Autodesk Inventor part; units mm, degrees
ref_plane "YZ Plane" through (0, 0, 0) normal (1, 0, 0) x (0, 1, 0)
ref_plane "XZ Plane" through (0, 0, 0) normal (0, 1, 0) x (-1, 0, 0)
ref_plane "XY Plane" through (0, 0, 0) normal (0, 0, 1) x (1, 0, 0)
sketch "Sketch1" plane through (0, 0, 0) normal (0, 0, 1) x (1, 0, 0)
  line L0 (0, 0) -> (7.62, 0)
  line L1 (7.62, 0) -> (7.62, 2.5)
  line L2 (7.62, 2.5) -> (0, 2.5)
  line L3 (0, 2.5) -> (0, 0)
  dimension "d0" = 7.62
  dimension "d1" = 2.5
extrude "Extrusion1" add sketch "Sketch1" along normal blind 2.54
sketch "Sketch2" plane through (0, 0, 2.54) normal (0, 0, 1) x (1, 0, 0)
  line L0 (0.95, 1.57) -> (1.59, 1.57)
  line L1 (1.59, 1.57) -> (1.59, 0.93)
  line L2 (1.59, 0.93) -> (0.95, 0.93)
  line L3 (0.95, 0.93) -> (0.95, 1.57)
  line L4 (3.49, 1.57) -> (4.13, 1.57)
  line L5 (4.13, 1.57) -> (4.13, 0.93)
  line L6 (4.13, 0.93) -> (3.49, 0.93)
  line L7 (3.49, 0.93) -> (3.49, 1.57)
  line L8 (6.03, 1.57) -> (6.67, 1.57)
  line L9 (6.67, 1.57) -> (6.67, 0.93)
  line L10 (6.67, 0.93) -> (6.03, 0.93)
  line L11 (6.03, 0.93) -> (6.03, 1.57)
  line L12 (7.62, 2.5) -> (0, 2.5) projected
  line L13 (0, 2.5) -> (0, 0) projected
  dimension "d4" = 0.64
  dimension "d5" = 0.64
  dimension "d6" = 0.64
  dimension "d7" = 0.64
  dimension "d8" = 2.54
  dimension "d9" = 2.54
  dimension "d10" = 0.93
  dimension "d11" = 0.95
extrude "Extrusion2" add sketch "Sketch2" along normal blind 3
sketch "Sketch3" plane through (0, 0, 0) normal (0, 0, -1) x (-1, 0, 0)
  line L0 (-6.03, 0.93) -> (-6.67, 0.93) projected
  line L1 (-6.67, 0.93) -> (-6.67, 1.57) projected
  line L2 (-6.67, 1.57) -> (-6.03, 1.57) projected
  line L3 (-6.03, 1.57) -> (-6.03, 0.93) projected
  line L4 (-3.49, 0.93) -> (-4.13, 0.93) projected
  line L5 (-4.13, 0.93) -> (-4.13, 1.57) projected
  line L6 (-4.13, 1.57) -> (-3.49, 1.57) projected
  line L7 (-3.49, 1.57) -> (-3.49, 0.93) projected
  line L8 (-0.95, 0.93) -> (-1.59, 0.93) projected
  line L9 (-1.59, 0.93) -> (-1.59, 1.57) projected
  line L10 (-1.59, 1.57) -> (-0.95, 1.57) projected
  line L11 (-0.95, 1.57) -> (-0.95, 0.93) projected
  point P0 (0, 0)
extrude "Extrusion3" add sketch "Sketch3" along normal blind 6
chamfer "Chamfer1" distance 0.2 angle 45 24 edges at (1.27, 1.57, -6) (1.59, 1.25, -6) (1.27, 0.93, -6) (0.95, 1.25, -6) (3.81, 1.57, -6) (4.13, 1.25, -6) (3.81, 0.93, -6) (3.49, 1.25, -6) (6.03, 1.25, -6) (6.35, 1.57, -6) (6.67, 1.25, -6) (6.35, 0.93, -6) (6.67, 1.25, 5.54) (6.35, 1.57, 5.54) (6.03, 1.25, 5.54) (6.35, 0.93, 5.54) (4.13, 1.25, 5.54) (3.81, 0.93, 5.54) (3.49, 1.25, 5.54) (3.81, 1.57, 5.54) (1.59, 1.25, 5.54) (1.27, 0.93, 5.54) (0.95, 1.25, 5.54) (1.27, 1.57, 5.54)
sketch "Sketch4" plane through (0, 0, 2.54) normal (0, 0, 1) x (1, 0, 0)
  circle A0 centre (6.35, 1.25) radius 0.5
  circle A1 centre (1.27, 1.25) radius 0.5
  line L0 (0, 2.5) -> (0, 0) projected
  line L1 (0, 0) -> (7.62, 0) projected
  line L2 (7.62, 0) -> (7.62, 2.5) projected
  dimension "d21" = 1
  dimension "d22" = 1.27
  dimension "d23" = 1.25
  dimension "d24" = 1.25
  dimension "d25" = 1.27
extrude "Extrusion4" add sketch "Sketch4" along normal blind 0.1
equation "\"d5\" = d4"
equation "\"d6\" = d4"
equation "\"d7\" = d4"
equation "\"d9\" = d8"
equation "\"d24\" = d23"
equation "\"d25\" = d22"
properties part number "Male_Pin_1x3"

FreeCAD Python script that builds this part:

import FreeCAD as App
import Part
import Sketcher
from FreeCAD import Vector
Q = App.Units.Quantity


def edges_at(feature, points):
    """Names of the edges that pass closest to the given points."""
    edges = feature.Shape.Edges
    near = lambda p: min(range(len(edges)), key=lambda i: edges[i].distToShape(Part.Vertex(*p))[0])
    return sorted({f"Edge{near(p) + 1}" for p in points})


def add_polygon(sketch, points):
    """Adds a closed chain of lines whose ends are joined by coincident constraints."""
    first, n = sketch.GeometryCount, len(points)
    for a, b in zip(points, points[1:] + points[:1]):
        sketch.addGeometry(Part.LineSegment(App.Vector(*a, 0), App.Vector(*b, 0)), False)
    for i in range(n):
        sketch.addConstraint(Sketcher.Constraint("Coincident", first + i, 2, first + (i + 1) % n, 1))

doc = App.newDocument("Part")
params = doc.addObject("Spreadsheet::Sheet", "Params")
for row, (alias, value) in enumerate([
    ("sketch1_height", "2.5 mm"),
    ("sketch1_width", "7.62 mm"),
    ("pad1_length", "2.54 mm"),
    ("sketch2_width", "0.64 mm"),
    ("pad2_length", "3 mm"),
    ("sketch3_width", "0.64 mm"),
    ("pad3_length", "6 mm"),
    ("chamfer_size", "0.2 mm"),
    ("sketch4_diameter", "1 mm"),
    ("pad4_length", "0.1 mm"),
], start=1):
    params.set(f"A{row}", alias)
    params.set(f"B{row}", "=" + value)
    params.setAlias(f"B{row}", alias)

body = doc.addObject("PartDesign::Body", "Body")

sketch1 = body.newObject("Sketcher::SketchObject", "Sketch")
sketch1.AttachmentSupport = (doc.getObject("XY_Plane"), [""])
sketch1.MapMode = "FlatFace"
add_polygon(sketch1, [(0, 2.5), (0, 0), (7.6, 0), (7.6, 2.5)])
sketch1.addConstraint(Sketcher.Constraint("Vertical", 0))
sketch1.addConstraint(Sketcher.Constraint("Horizontal", 1))
sketch1.addConstraint(Sketcher.Constraint("Vertical", 2))
sketch1.addConstraint(Sketcher.Constraint("Horizontal", 3))
sketch1.addConstraint(Sketcher.Constraint("Coincident", 0, 2, -1, 1))
sketch1.addConstraint(Sketcher.Constraint("DistanceY", 0, 2, 0, 1, Q("2.5 mm")))
sketch1.addConstraint(Sketcher.Constraint("DistanceX", 1, 1, 1, 2, Q("7.62 mm")))
sketch1.setExpression("Constraints[9]", "Params.sketch1_height")
sketch1.setExpression("Constraints[10]", "Params.sketch1_width")
pad1 = body.newObject("PartDesign::Pad", "Pad")
pad1.Profile = sketch1
pad1.setExpression("Length", "Params.pad1_length")

sketch2 = body.newObject("Sketcher::SketchObject", "Sketch001")
sketch2.AttachmentSupport = (doc.getObject("XY_Plane"), [""])
sketch2.MapMode = "FlatFace"
sketch2.AttachmentOffset = App.Placement(Vector(0, 0, 2.54), App.Rotation())
add_polygon(sketch2, [(1.6, 1.6), (0.9, 1.6), (0.9, 0.9), (1.6, 0.9)])
add_polygon(sketch2, [(4.1, 1.6), (3.5, 1.6), (3.5, 0.9), (4.1, 0.9)])
add_polygon(sketch2, [(6.7, 1.6), (6, 1.6), (6, 0.9), (6.7, 0.9)])
sketch2.addConstraint(Sketcher.Constraint("Horizontal", 0))
sketch2.addConstraint(Sketcher.Constraint("Vertical", 1))
sketch2.addConstraint(Sketcher.Constraint("Horizontal", 2))
sketch2.addConstraint(Sketcher.Constraint("Vertical", 3))
sketch2.addConstraint(Sketcher.Constraint("Horizontal", 4))
sketch2.addConstraint(Sketcher.Constraint("Vertical", 5))
sketch2.addConstraint(Sketcher.Constraint("Horizontal", 6))
sketch2.addConstraint(Sketcher.Constraint("Vertical", 7))
sketch2.addConstraint(Sketcher.Constraint("Horizontal", 8))
sketch2.addConstraint(Sketcher.Constraint("Vertical", 9))
sketch2.addConstraint(Sketcher.Constraint("Horizontal", 10))
sketch2.addConstraint(Sketcher.Constraint("Vertical", 11))
sketch2.addConstraint(Sketcher.Constraint("Horizontal", 3, 2, 4, 2))
sketch2.addConstraint(Sketcher.Constraint("Horizontal", 2, 2, 5, 2))
sketch2.addConstraint(Sketcher.Constraint("Horizontal", 7, 2, 8, 2))
sketch2.addConstraint(Sketcher.Constraint("Horizontal", 6, 2, 9, 2))
sketch2.addConstraint(Sketcher.Constraint("Equal", 2, 4))
sketch2.addConstraint(Sketcher.Constraint("Equal", 6, 8))
sketch2.addConstraint(Sketcher.Constraint("Equal", 10, 1))
sketch2.addConstraint(Sketcher.Constraint("DistanceX", 0, 2, 0, 1, Q("0.64 mm")))
sketch2.addConstraint(Sketcher.Constraint("DistanceX", -1, 1, 0, 2, Q("0.95 mm")))
sketch2.addConstraint(Sketcher.Constraint("DistanceY", -1, 1, 1, 2, Q("0.93 mm")))
sketch2.addConstraint(Sketcher.Constraint("DistanceX", 0, 2, 4, 2, Q("2.54 mm")))
sketch2.addConstraint(Sketcher.Constraint("DistanceX", 4, 2, 8, 2, Q("2.54 mm")))
sketch2.setExpression("Constraints[31]", "Params.sketch2_width")
pad2 = body.newObject("PartDesign::Pad", "Pad001")
pad2.Profile = sketch2
pad2.setExpression("Length", "Params.pad2_length")

sketch3 = body.newObject("Sketcher::SketchObject", "Sketch002")
sketch3.AttachmentSupport = (doc.getObject("XY_Plane"), [""])
sketch3.MapMode = "FlatFace"
add_polygon(sketch3, [(6.7, 0.9), (6, 0.9), (6, 1.6), (6.7, 1.6)])
add_polygon(sketch3, [(4.1, 0.9), (3.5, 0.9), (3.5, 1.6), (4.1, 1.6)])
add_polygon(sketch3, [(1.6, 0.9), (0.9, 0.9), (0.9, 1.6), (1.6, 1.6)])
sketch3.addConstraint(Sketcher.Constraint("Horizontal", 0))
sketch3.addConstraint(Sketcher.Constraint("Vertical", 1))
sketch3.addConstraint(Sketcher.Constraint("Horizontal", 2))
sketch3.addConstraint(Sketcher.Constraint("Vertical", 3))
sketch3.addConstraint(Sketcher.Constraint("Horizontal", 4))
sketch3.addConstraint(Sketcher.Constraint("Vertical", 5))
sketch3.addConstraint(Sketcher.Constraint("Horizontal", 6))
sketch3.addConstraint(Sketcher.Constraint("Vertical", 7))
sketch3.addConstraint(Sketcher.Constraint("Horizontal", 8))
sketch3.addConstraint(Sketcher.Constraint("Vertical", 9))
sketch3.addConstraint(Sketcher.Constraint("Horizontal", 10))
sketch3.addConstraint(Sketcher.Constraint("Vertical", 11))
sketch3.addConstraint(Sketcher.Constraint("Horizontal", 3, 2, 4, 2))
sketch3.addConstraint(Sketcher.Constraint("Horizontal", 2, 2, 5, 2))
sketch3.addConstraint(Sketcher.Constraint("Horizontal", 7, 2, 8, 2))
sketch3.addConstraint(Sketcher.Constraint("Horizontal", 6, 2, 9, 2))
sketch3.addConstraint(Sketcher.Constraint("Equal", 2, 4))
sketch3.addConstraint(Sketcher.Constraint("Equal", 6, 8))
sketch3.addConstraint(Sketcher.Constraint("Equal", 10, 1))
sketch3.addConstraint(Sketcher.Constraint("DistanceX", 0, 2, 0, 1, Q("0.64 mm")))
sketch3.addConstraint(Sketcher.Constraint("DistanceX", 6, 2, 1, 2, Q("1.9 mm")))
sketch3.addConstraint(Sketcher.Constraint("DistanceX", 10, 2, 5, 2, Q("1.9 mm")))
sketch3.addConstraint(Sketcher.Constraint("DistanceX", -1, 1, 0, 2, Q("6.03 mm")))
sketch3.addConstraint(Sketcher.Constraint("DistanceY", -1, 1, 0, 2, Q("0.93 mm")))
sketch3.setExpression("Constraints[31]", "Params.sketch3_width")
pad3 = body.newObject("PartDesign::Pad", "Pad002")
pad3.Profile = sketch3
pad3.setExpression("Length", "Params.pad3_length")
pad3.Reversed = True
doc.recompute()

chamfer = body.newObject("PartDesign::Chamfer", "Chamfer")
chamfer.Base = (pad3, edges_at(pad3, [
    (1.27, 1.57, -6),
    (1.59, 1.25, -6),
    (1.27, 0.93, -6),
    (0.95, 1.25, -6),
    (3.81, 1.57, -6),
    (4.13, 1.25, -6),
    (3.81, 0.93, -6),
    (3.49, 1.25, -6),
    (6.03, 1.25, -6),
    (6.35, 1.57, -6),
    (6.67, 1.25, -6),
    (6.35, 0.93, -6),
    (6.67, 1.25, 5.54),
    (6.35, 1.57, 5.54),
    (6.03, 1.25, 5.54),
    (6.35, 0.93, 5.54),
    (4.13, 1.25, 5.54),
    (3.81, 0.93, 5.54),
    (3.49, 1.25, 5.54),
    (3.81, 1.57, 5.54),
    (1.59, 1.25, 5.54),
    (1.27, 0.93, 5.54),
    (0.95, 1.25, 5.54),
    (1.27, 1.57, 5.54),
]))
chamfer.setExpression("Size", "Params.chamfer_size")

sketch4 = body.newObject("Sketcher::SketchObject", "Sketch003")
sketch4.AttachmentSupport = (doc.getObject("XY_Plane"), [""])
sketch4.MapMode = "FlatFace"
sketch4.AttachmentOffset = App.Placement(Vector(0, 0, 2.54), App.Rotation())
sketch4.addGeometry(Part.Circle(Vector(6.3, 1.2, 0), Vector(0, 0, 1), 0.5), False)
sketch4.addGeometry(Part.Circle(Vector(1.3, 1.2, 0), Vector(0, 0, 1), 0.5), False)
sketch4.addConstraint(Sketcher.Constraint("Equal", 0, 1))
sketch4.addConstraint(Sketcher.Constraint("Horizontal", 0, 3, 1, 3))
sketch4.addConstraint(Sketcher.Constraint("Diameter", 0, Q("1 mm")))
sketch4.addConstraint(Sketcher.Constraint("DistanceY", -1, 1, 0, 3, Q("1.25 mm")))
sketch4.addConstraint(Sketcher.Constraint("DistanceX", -1, 1, 1, 3, Q("1.27 mm")))
sketch4.addConstraint(Sketcher.Constraint("DistanceX", -1, 1, 0, 3, Q("6.35 mm")))
sketch4.setExpression("Constraints[2]", "Params.sketch4_diameter")
pad4 = body.newObject("PartDesign::Pad", "Pad003")
pad4.Profile = sketch4
pad4.setExpression("Length", "Params.pad4_length")

doc.recompute()
